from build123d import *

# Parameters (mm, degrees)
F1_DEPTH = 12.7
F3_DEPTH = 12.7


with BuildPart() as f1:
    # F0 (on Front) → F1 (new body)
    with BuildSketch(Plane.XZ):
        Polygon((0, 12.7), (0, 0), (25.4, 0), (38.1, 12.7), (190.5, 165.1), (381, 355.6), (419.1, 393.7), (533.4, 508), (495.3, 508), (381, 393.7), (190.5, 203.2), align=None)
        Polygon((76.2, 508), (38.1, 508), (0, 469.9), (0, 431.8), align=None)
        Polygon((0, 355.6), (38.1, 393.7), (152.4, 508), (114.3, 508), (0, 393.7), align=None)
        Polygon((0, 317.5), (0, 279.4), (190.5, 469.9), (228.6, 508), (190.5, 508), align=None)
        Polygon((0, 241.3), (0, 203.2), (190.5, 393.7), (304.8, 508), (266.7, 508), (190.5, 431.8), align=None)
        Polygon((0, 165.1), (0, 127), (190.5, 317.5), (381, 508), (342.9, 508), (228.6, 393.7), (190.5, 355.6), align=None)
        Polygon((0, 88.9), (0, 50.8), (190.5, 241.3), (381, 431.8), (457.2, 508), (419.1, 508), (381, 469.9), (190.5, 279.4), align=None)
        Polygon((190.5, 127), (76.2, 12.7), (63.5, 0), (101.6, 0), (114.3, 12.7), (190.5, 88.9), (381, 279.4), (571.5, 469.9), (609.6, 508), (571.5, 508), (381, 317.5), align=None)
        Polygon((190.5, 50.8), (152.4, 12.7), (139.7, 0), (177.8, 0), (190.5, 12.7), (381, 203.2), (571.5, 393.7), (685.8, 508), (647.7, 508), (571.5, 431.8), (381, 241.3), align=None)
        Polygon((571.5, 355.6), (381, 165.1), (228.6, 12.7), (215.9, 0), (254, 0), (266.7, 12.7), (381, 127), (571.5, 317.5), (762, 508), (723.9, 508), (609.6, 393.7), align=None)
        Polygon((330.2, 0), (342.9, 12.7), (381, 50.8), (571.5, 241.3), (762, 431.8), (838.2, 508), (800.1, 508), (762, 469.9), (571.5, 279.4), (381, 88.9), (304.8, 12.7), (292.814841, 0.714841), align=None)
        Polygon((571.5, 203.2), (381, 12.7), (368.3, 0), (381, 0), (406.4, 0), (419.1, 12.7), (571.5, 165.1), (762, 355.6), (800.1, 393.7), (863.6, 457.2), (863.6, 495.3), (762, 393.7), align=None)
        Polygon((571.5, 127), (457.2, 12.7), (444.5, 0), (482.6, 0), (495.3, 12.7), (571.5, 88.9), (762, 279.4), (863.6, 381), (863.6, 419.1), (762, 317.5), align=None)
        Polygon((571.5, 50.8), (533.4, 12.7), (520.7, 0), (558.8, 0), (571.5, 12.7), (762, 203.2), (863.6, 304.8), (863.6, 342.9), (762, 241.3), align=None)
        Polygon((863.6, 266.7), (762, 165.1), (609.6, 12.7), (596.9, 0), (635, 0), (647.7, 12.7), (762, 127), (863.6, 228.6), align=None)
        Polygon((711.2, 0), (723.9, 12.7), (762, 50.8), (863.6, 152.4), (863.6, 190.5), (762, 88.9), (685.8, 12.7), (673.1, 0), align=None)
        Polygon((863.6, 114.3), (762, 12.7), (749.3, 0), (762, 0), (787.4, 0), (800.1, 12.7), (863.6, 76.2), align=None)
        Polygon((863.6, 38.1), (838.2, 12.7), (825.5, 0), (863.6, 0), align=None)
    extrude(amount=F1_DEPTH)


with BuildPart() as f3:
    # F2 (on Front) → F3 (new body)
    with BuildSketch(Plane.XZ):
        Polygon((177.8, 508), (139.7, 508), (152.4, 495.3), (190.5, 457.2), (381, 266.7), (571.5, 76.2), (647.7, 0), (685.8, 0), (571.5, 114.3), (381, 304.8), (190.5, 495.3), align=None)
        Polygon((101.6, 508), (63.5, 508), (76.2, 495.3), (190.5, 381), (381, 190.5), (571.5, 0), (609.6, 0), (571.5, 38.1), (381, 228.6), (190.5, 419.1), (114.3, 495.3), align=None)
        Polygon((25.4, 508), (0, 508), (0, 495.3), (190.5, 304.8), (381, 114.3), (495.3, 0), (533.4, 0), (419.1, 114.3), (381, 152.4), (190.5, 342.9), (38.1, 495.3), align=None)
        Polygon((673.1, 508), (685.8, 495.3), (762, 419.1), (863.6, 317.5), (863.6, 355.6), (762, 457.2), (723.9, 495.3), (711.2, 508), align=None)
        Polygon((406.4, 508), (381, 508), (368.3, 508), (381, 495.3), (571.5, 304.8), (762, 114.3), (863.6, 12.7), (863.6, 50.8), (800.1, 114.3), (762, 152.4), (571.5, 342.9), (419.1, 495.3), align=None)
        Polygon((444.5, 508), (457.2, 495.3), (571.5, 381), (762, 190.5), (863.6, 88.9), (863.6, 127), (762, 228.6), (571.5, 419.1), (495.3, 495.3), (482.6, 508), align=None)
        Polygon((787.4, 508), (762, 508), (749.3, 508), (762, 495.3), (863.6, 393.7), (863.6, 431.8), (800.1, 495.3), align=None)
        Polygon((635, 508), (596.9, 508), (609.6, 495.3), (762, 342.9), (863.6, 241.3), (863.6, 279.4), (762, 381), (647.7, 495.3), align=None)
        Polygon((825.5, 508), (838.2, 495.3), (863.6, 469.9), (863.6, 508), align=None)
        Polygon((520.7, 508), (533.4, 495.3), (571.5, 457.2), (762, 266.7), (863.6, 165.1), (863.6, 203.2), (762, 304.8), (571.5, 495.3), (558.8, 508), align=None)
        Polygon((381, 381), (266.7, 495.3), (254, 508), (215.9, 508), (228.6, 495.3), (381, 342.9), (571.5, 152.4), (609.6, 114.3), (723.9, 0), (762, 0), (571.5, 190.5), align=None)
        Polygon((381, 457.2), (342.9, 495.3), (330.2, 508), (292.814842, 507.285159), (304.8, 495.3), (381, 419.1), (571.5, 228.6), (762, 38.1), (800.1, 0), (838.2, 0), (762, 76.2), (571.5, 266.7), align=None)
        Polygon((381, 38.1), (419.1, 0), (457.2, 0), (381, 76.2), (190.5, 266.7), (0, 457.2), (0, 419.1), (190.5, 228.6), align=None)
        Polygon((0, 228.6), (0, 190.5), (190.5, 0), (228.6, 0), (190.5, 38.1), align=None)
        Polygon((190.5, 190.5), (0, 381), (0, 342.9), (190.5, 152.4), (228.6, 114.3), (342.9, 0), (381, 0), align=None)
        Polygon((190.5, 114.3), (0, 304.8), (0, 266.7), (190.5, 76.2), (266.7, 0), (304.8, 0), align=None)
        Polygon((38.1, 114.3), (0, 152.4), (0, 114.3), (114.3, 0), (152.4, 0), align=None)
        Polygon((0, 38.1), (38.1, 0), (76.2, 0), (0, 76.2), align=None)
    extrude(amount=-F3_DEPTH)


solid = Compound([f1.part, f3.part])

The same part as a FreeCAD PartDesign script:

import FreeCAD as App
import Part
import Sketcher

V = App.Vector
Q = App.Units.Quantity


def add_polygon(sketch, points):
    """Adds a closed chain of lines whose ends are joined by coincident constraints."""
    first, n = sketch.GeometryCount, len(points)
    for a, b in zip(points, points[1:] + points[:1]):
        sketch.addGeometry(Part.LineSegment(App.Vector(*a, 0), App.Vector(*b, 0)), False)
    for i in range(n):
        sketch.addConstraint(Sketcher.Constraint("Coincident", first + i, 2, first + (i + 1) % n, 1))

doc = App.newDocument("Part")
params = doc.addObject("Spreadsheet::Sheet", "Params")
for row, (alias, value) in enumerate([
    ("sketch1_width", "1 in"),
    ("sketch1_width2", "1.5 in"),
    ("pad1_length", "0.5 in"),
    ("sketch2_width", "1 in"),
    ("sketch2_width2", "1.5 in"),
    ("pad2_length", "0.5 in"),
], start=1):
    params.set(f"A{row}", alias)
    params.set(f"B{row}", "=" + value)
    params.setAlias(f"B{row}", alias)

body = doc.addObject("PartDesign::Body", "Body")
body.AllowCompound = True

sketch1 = body.newObject("Sketcher::SketchObject", "Sketch")
sketch1.AttachmentSupport = (doc.getObject("XZ_Plane"), [""])
sketch1.MapMode = "FlatFace"
add_polygon(sketch1, [(0, 13), (0, 0), (25, 0), (533, 508), (495, 508)])
add_polygon(sketch1, [(76, 508), (38, 508), (0, 470), (0, 432)])
add_polygon(sketch1, [(0, 356), (152, 508), (114, 508), (0, 394)])
add_polygon(sketch1, [(0, 318), (0, 279), (229, 508), (190, 508)])
add_polygon(sketch1, [(0, 241), (0, 203), (305, 508), (267, 508)])
add_polygon(sketch1, [(0, 165), (0, 127), (381, 508), (343, 508)])
add_polygon(sketch1, [(0, 89), (0, 51), (457, 508), (419, 508)])
add_polygon(sketch1, [(64, 0), (102, 0), (610, 508), (572, 508)])
add_polygon(sketch1, [(140, 0), (178, 0), (686, 508), (648, 508)])
add_polygon(sketch1, [(216, 0), (254, 0), (762, 508), (724, 508)])
add_polygon(sketch1, [(330, 0), (838, 508), (800, 508), (293, 1)])
add_polygon(sketch1, [(368, 0), (406, 0), (864, 457), (864, 495)])
add_polygon(sketch1, [(444, 0), (483, 0), (864, 381), (864, 419)])
add_polygon(sketch1, [(521, 0), (559, 0), (864, 305), (864, 343)])
add_polygon(sketch1, [(864, 267), (597, 0), (635, 0), (864, 229)])
add_polygon(sketch1, [(711, 0), (864, 152), (864, 190), (673, 0)])
add_polygon(sketch1, [(864, 114), (749, 0), (787, 0), (864, 76)])
add_polygon(sketch1, [(864, 38), (826, 0), (864, 0)])
sketch1.addConstraint([
    Sketcher.Constraint("Vertical", 0),
    Sketcher.Constraint("Horizontal", 1),
    Sketcher.Constraint("Horizontal", 3),
    Sketcher.Constraint("Horizontal", 5),
    Sketcher.Constraint("Vertical", 7),
    Sketcher.Constraint("Horizontal", 10),
    Sketcher.Constraint("Vertical", 12),
    Sketcher.Constraint("Vertical", 13),
    Sketcher.Constraint("Horizontal", 15),
    Sketcher.Constraint("Vertical", 17),
    Sketcher.Constraint("Horizontal", 19),
    Sketcher.Constraint("Vertical", 21),
    Sketcher.Constraint("Horizontal", 23),
    Sketcher.Constraint("Vertical", 25),
    Sketcher.Constraint("Horizontal", 27),
    Sketcher.Constraint("Horizontal", 29),
    Sketcher.Constraint("Horizontal", 31),
    Sketcher.Constraint("Horizontal", 33),
    Sketcher.Constraint("Horizontal", 35),
    Sketcher.Constraint("Horizontal", 37),
    Sketcher.Constraint("Horizontal", 39),
    Sketcher.Constraint("Horizontal", 42),
    Sketcher.Constraint("Horizontal", 45),
    Sketcher.Constraint("Vertical", 47),
    Sketcher.Constraint("Horizontal", 49),
    Sketcher.Constraint("Vertical", 51),
    Sketcher.Constraint("Horizontal", 53),
    Sketcher.Constraint("Vertical", 55),
    Sketcher.Constraint("Horizontal", 58),
    Sketcher.Constraint("Vertical", 60),
    Sketcher.Constraint("Vertical", 62),
    Sketcher.Constraint("Horizontal", 64),
    Sketcher.Constraint("Horizontal", 66),
    Sketcher.Constraint("Vertical", 68),
    Sketcher.Constraint("Horizontal", 70),
    Sketcher.Constraint("Vertical", 71),
    Sketcher.Constraint("Coincident", 0, 2, -1, 1),
    Sketcher.Constraint("PointOnObject", 6, 2, -2),
    Sketcher.Constraint("PointOnObject", 11, 2, -2),
    Sketcher.Constraint("PointOnObject", 13, 2, -2),
    Sketcher.Constraint("PointOnObject", 17, 2, -2),
    Sketcher.Constraint("PointOnObject", 21, 2, -2),
    Sketcher.Constraint("PointOnObject", 25, 2, -2),
    Sketcher.Constraint("PointOnObject", 29, 2, -1),
    Sketcher.Constraint("PointOnObject", 33, 2, -1),
    Sketcher.Constraint("PointOnObject", 37, 2, -1),
    Sketcher.Constraint("PointOnObject", 44, 2, -1),
    Sketcher.Constraint("PointOnObject", 45, 2, -1),
    Sketcher.Constraint("PointOnObject", 49, 2, -1),
    Sketcher.Constraint("PointOnObject", 53, 2, -1),
    Sketcher.Constraint("PointOnObject", 57, 2, -1),
    Sketcher.Constraint("PointOnObject", 63, 2, -1),
    Sketcher.Constraint("PointOnObject", 65, 2, -1),
    Sketcher.Constraint("PointOnObject", 69, 2, -1),
    Sketcher.Constraint("Parallel", 2, 4),
    Sketcher.Constraint("Parallel", 4, 6),
    Sketcher.Constraint("Parallel", 6, 8),
    Sketcher.Constraint("Parallel", 8, 9),
    Sketcher.Constraint("Parallel", 9, 11),
    Sketcher.Constraint("Parallel", 11, 14),
    Sketcher.Constraint("Parallel", 14, 16),
    Sketcher.Constraint("Parallel", 16, 18),
    Sketcher.Constraint("Parallel", 18, 20),
    Sketcher.Constraint("Parallel", 20, 22),
    Sketcher.Constraint("Parallel", 22, 24),
    Sketcher.Constraint("Parallel", 24, 26),
    Sketcher.Constraint("Parallel", 26, 28),
    Sketcher.Constraint("Parallel", 28, 30),
    Sketcher.Constraint("Parallel", 30, 32),
    Sketcher.Constraint("Parallel", 32, 34),
    Sketcher.Constraint("Parallel", 34, 36),
    Sketcher.Constraint("Parallel", 36, 38),
    Sketcher.Constraint("Parallel", 38, 40),
    Sketcher.Constraint("Parallel", 40, 41),
    Sketcher.Constraint("Parallel", 41, 43),
    Sketcher.Constraint("Parallel", 43, 46),
    Sketcher.Constraint("Parallel", 46, 48),
    Sketcher.Constraint("Parallel", 48, 50),
    Sketcher.Constraint("Parallel", 50, 52),
    Sketcher.Constraint("Parallel", 52, 54),
    Sketcher.Constraint("Parallel", 54, 56),
    Sketcher.Constraint("Parallel", 56, 57),
    Sketcher.Constraint("Parallel", 57, 59),
    Sketcher.Constraint("Parallel", 59, 61),
    Sketcher.Constraint("Parallel", 61, 63),
    Sketcher.Constraint("Parallel", 63, 65),
    Sketcher.Constraint("Parallel", 65, 67),
    Sketcher.Constraint("Parallel", 67, 69),
    Sketcher.Constraint("Horizontal", 3, 2, 5, 2),
    Sketcher.Constraint("Horizontal", 8, 2, 9, 2),
    Sketcher.Constraint("Horizontal", 10, 2, 14, 2),
    Sketcher.Constraint("Horizontal", 15, 2, 18, 2),
    Sketcher.Constraint("Horizontal", 19, 2, 22, 2),
    Sketcher.Constraint("Horizontal", 23, 2, 26, 2),
    Sketcher.Constraint("Horizontal", 27, 2, 30, 2),
    Sketcher.Constraint("Horizontal", 31, 2, 34, 2),
    Sketcher.Constraint("Horizontal", 35, 2, 38, 2),
    Sketcher.Constraint("Horizontal", 39, 2, 41, 2),
    Sketcher.Constraint("Vertical", 47, 2, 50, 2),
    Sketcher.Constraint("Vertical", 51, 2, 54, 2),
    Sketcher.Constraint("Vertical", 55, 2, 59, 2),
    Sketcher.Constraint("Vertical", 60, 2, 61, 2),
    Sketcher.Constraint("Vertical", 62, 2, 67, 2),
    Sketcher.Constraint("Vertical", 68, 2, 70, 2),
    Sketcher.Constraint("Equal", 3, 5),
    Sketcher.Constraint("Equal", 5, 10),
    Sketcher.Constraint("Equal", 10, 15),
    Sketcher.Constraint("Equal", 15, 19),
    Sketcher.Constraint("Equal", 19, 23),
    Sketcher.Constraint("Equal", 23, 27),
    Sketcher.Constraint("Equal", 27, 29),
    Sketcher.Constraint("Equal", 31, 33),
    Sketcher.Constraint("Equal", 35, 37),
    Sketcher.Constraint("Equal", 39, 42),
    Sketcher.Constraint("Equal", 42, 45),
    Sketcher.Constraint("Equal", 45, 49),
    Sketcher.Constraint("Equal", 49, 53),
    Sketcher.Constraint("Equal", 53, 58),
    Sketcher.Constraint("Equal", 58, 64),
    Sketcher.Constraint("Equal", 64, 66),
    Sketcher.Constraint("Equal", 66, 70),
    Sketcher.Constraint("Equal", 70, 7),
    Sketcher.Constraint("Equal", 26, 46),
    Sketcher.Constraint("Equal", 4, 48),
    Sketcher.Constraint("Equal", 22, 50),
    Sketcher.Constraint("Equal", 28, 52),
    Sketcher.Constraint("Equal", 18, 54),
    Sketcher.Constraint("Equal", 24, 56),
    Sketcher.Constraint("Equal", 20, 57),
    Sketcher.Constraint("Equal", 14, 59),
    Sketcher.Constraint("Equal", 9, 61),
    Sketcher.Constraint("Equal", 16, 63),
    Sketcher.Constraint("Equal", 11, 65),
    Sketcher.Constraint("Equal", 8, 67),
    Sketcher.Constraint("Equal", 6, 69),
    Sketcher.Constraint("DistanceX", 1, 1, 1, 2, Q("1 in")),
    Sketcher.Constraint("DistanceX", 3, 2, 3, 1, Q("1.5 in")),
    Sketcher.Constraint("DistanceX", -1, 1, 29, 2, Q("4 in")),
    Sketcher.Constraint("DistanceX", -1, 1, 33, 2, Q("7 in")),
    Sketcher.Constraint("DistanceX", -1, 1, 37, 2, Q("10 in")),
    Sketcher.Constraint("DistanceX", -1, 1, 41, 2, Q("33 in")),
    Sketcher.Constraint("DistanceX", -1, 1, 45, 2, Q("16 in")),
    Sketcher.Constraint("Distance", 43, 717.409552),
])
sketch1.setExpression("Constraints[207]", "Params.sketch1_width")
sketch1.setExpression("Constraints[208]", "Params.sketch1_width2")
pad1 = body.newObject("PartDesign::Pad", "Pad")
pad1.Profile = sketch1
pad1.setExpression("Length", "Params.pad1_length")
body2 = doc.addObject("PartDesign::Body", "Body001")
body2.AllowCompound = True

sketch2 = body2.newObject("Sketcher::SketchObject", "Sketch001")
sketch2.AttachmentSupport = (doc.getObject("XZ_Plane001"), [""])
sketch2.MapMode = "FlatFace"
add_polygon(sketch2, [(178, 508), (140, 508), (648, 0), (686, 0)])
add_polygon(sketch2, [(102, 508), (64, 508), (572, 0), (610, 0)])
add_polygon(sketch2, [(25, 508), (0, 508), (0, 495), (495, 0), (533, 0)])
add_polygon(sketch2, [(673, 508), (864, 318), (864, 356), (711, 508)])
add_polygon(sketch2, [(406, 508), (368, 508), (864, 13), (864, 51)])
add_polygon(sketch2, [(444, 508), (864, 89), (864, 127), (483, 508)])
add_polygon(sketch2, [(787, 508), (749, 508), (864, 394), (864, 432)])
add_polygon(sketch2, [(635, 508), (597, 508), (864, 241), (864, 279)])
add_polygon(sketch2, [(826, 508), (864, 470), (864, 508)])
add_polygon(sketch2, [(521, 508), (864, 165), (864, 203), (559, 508)])
add_polygon(sketch2, [(254, 508), (216, 508), (724, 0), (762, 0)])
add_polygon(sketch2, [(330, 508), (293, 507), (305, 495), (800, 0), (838, 0)])
add_polygon(sketch2, [(419, 0), (457, 0), (0, 457), (0, 419)])
add_polygon(sketch2, [(0, 229), (0, 190), (190, 0), (229, 0)])
add_polygon(sketch2, [(0, 381), (0, 343), (343, 0), (381, 0)])
add_polygon(sketch2, [(0, 305), (0, 267), (267, 0), (305, 0)])
add_polygon(sketch2, [(0, 152), (0, 114), (114, 0), (152, 0)])
add_polygon(sketch2, [(0, 38), (38, 0), (76, 0), (0, 76)])
sketch2.addConstraint([
    Sketcher.Constraint("Horizontal", 0),
    Sketcher.Constraint("Horizontal", 2),
    Sketcher.Constraint("Horizontal", 4),
    Sketcher.Constraint("Horizontal", 6),
    Sketcher.Constraint("Horizontal", 8),
    Sketcher.Constraint("Vertical", 9),
    Sketcher.Constraint("Horizontal", 11),
    Sketcher.Constraint("Vertical", 14),
    Sketcher.Constraint("Horizontal", 16),
    Sketcher.Constraint("Horizontal", 17),
    Sketcher.Constraint("Vertical", 19),
    Sketcher.Constraint("Vertical", 22),
    Sketcher.Constraint("Horizontal", 24),
    Sketcher.Constraint("Horizontal", 25),
    Sketcher.Constraint("Vertical", 27),
    Sketcher.Constraint("Horizontal", 29),
    Sketcher.Constraint("Vertical", 31),
    Sketcher.Constraint("Vertical", 34),
    Sketcher.Constraint("Horizontal", 35),
    Sketcher.Constraint("Vertical", 37),
    Sketcher.Constraint("Horizontal", 39),
    Sketcher.Constraint("Horizontal", 40),
    Sketcher.Constraint("Horizontal", 42),
    Sketcher.Constraint("Horizontal", 47),
    Sketcher.Constraint("Horizontal", 49),
    Sketcher.Constraint("Vertical", 51),
    Sketcher.Constraint("Vertical", 53),
    Sketcher.Constraint("Horizontal", 55),
    Sketcher.Constraint("Vertical", 57),
    Sketcher.Constraint("Horizontal", 59),
    Sketcher.Constraint("Vertical", 61),
    Sketcher.Constraint("Horizontal", 63),
    Sketcher.Constraint("Vertical", 65),
    Sketcher.Constraint("Horizontal", 67),
    Sketcher.Constraint("Horizontal", 70),
    Sketcher.Constraint("Vertical", 72),
    Sketcher.Constraint("PointOnObject", 1, 2, -1),
    Sketcher.Constraint("PointOnObject", 5, 2, -1),
    Sketcher.Constraint("PointOnObject", 8, 2, -2),
    Sketcher.Constraint("PointOnObject", 10, 2, -1),
    Sketcher.Constraint("PointOnObject", 41, 2, -1),
    Sketcher.Constraint("PointOnObject", 46, 2, -1),
    Sketcher.Constraint("PointOnObject", 49, 2, -1),
    Sketcher.Constraint("PointOnObject", 50, 2, -2),
    Sketcher.Constraint("PointOnObject", 53, 2, -2),
    Sketcher.Constraint("PointOnObject", 54, 2, -1),
    Sketcher.Constraint("PointOnObject", 57, 2, -2),
    Sketcher.Constraint("PointOnObject", 58, 2, -1),
    Sketcher.Constraint("PointOnObject", 61, 2, -2),
    Sketcher.Constraint("PointOnObject", 62, 2, -1),
    Sketcher.Constraint("PointOnObject", 65, 2, -2),
    Sketcher.Constraint("PointOnObject", 66, 2, -1),
    Sketcher.Constraint("PointOnObject", 69, 2, -1),
    Sketcher.Constraint("PointOnObject", 71, 2, -2),
    Sketcher.Constraint("Parallel", 1, 3),
    Sketcher.Constraint("Parallel", 3, 5),
    Sketcher.Constraint("Parallel", 5, 7),
    Sketcher.Constraint("Parallel", 7, 10),
    Sketcher.Constraint("Parallel", 10, 12),
    Sketcher.Constraint("Parallel", 12, 13),
    Sketcher.Constraint("Parallel", 13, 15),
    Sketcher.Constraint("Parallel", 15, 18),
    Sketcher.Constraint("Parallel", 18, 20),
    Sketcher.Constraint("Parallel", 20, 21),
    Sketcher.Constraint("Parallel", 21, 23),
    Sketcher.Constraint("Parallel", 23, 26),
    Sketcher.Constraint("Parallel", 26, 28),
    Sketcher.Constraint("Parallel", 28, 30),
    Sketcher.Constraint("Parallel", 30, 32),
    Sketcher.Constraint("Parallel", 32, 33),
    Sketcher.Constraint("Parallel", 33, 36),
    Sketcher.Constraint("Parallel", 36, 38),
    Sketcher.Constraint("Parallel", 38, 41),
    Sketcher.Constraint("Parallel", 41, 43),
    Sketcher.Constraint("Parallel", 43, 45),
    Sketcher.Constraint("Parallel", 45, 46),
    Sketcher.Constraint("Parallel", 46, 48),
    Sketcher.Constraint("Parallel", 48, 50),
    Sketcher.Constraint("Parallel", 50, 52),
    Sketcher.Constraint("Parallel", 52, 54),
    Sketcher.Constraint("Parallel", 54, 56),
    Sketcher.Constraint("Parallel", 56, 58),
    Sketcher.Constraint("Parallel", 58, 60),
    Sketcher.Constraint("Parallel", 60, 62),
    Sketcher.Constraint("Parallel", 62, 64),
    Sketcher.Constraint("Parallel", 64, 66),
    Sketcher.Constraint("Parallel", 66, 68),
    Sketcher.Constraint("Parallel", 68, 69),
    Sketcher.Constraint("Parallel", 69, 71),
    Sketcher.Constraint("Horizontal", 3, 2, 4, 2),
    Sketcher.Constraint("Horizontal", 7, 2, 8, 2),
    Sketcher.Constraint("Horizontal", 12, 2, 15, 2),
    Sketcher.Constraint("Horizontal", 16, 2, 17, 2),
    Sketcher.Constraint("Horizontal", 20, 2, 23, 2),
    Sketcher.Constraint("Horizontal", 24, 2, 25, 2),
    Sketcher.Constraint("Horizontal", 28, 2, 29, 2),
    Sketcher.Constraint("Horizontal", 32, 2, 34, 2),
    Sketcher.Constraint("Horizontal", 35, 2, 38, 2),
    Sketcher.Constraint("Horizontal", 39, 2, 40, 2),
    Sketcher.Constraint("Horizontal", 9, 2, 45, 2),
    Sketcher.Constraint("Horizontal", 43, 2, 48, 2),
    Sketcher.Constraint("Vertical", 14, 2, 18, 2),
    Sketcher.Constraint("Vertical", 19, 2, 21, 2),
    Sketcher.Constraint("Vertical", 22, 2, 26, 2),
    Sketcher.Constraint("Vertical", 27, 2, 30, 2),
    Sketcher.Constraint("Vertical", 31, 2, 33, 2),
    Sketcher.Constraint("Vertical", 34, 2, 36, 2),
    Sketcher.Constraint("Vertical", 45, 2, 63, 2),
    Sketcher.Constraint("Equal", 2, 4),
    Sketcher.Constraint("Equal", 6, 11),
    Sketcher.Constraint("Equal", 11, 16),
    Sketcher.Constraint("Equal", 16, 17),
    Sketcher.Constraint("Equal", 17, 24),
    Sketcher.Constraint("Equal", 24, 25),
    Sketcher.Constraint("Equal", 25, 29),
    Sketcher.Constraint("Equal", 29, 35),
    Sketcher.Constraint("Equal", 35, 39),
    Sketcher.Constraint("Equal", 39, 40),
    Sketcher.Constraint("Equal", 42, 47),
    Sketcher.Constraint("Equal", 47, 49),
    Sketcher.Constraint("Equal", 49, 55),
    Sketcher.Constraint("Equal", 55, 59),
    Sketcher.Constraint("Equal", 59, 63),
    Sketcher.Constraint("Equal", 63, 67),
    Sketcher.Constraint("Equal", 67, 70),
    Sketcher.Constraint("Equal", 70, 14),
    Sketcher.Constraint("Equal", 10, 18),
    Sketcher.Constraint("Equal", 20, 50),
    Sketcher.Constraint("Equal", 21, 52),
    Sketcher.Constraint("Equal", 13, 54),
    Sketcher.Constraint("Equal", 32, 56),
    Sketcher.Constraint("Equal", 36, 58),
    Sketcher.Constraint("Equal", 23, 60),
    Sketcher.Constraint("Equal", 30, 62),
    Sketcher.Constraint("Equal", 38, 64),
    Sketcher.Constraint("Equal", 26, 66),
    Sketcher.Constraint("Equal", 15, 68),
    Sketcher.Constraint("Equal", 33, 69),
    Sketcher.Constraint("Equal", 28, 71),
    Sketcher.Constraint("DistanceX", 8, 2, 8, 1, Q("1 in")),
    Sketcher.Constraint("DistanceX", 0, 2, 0, 1, Q("1.5 in")),
    Sketcher.Constraint("DistanceX", -1, 1, 2, 2, Q("27 in")),
    Sketcher.Constraint("DistanceX", -1, 1, 6, 2, Q("24 in")),
    Sketcher.Constraint("DistanceX", -1, 1, 13, 2, Q("34 in")),
    Sketcher.Constraint("DistanceX", -1, 1, 42, 2, Q("30 in")),
    Sketcher.Constraint("Distance", 44, 37.391992),
])
sketch2.setExpression("Constraints[212]", "Params.sketch2_width")
sketch2.setExpression("Constraints[213]", "Params.sketch2_width2")
pad2 = body2.newObject("PartDesign::Pad", "Pad001")
pad2.Profile = sketch2
pad2.setExpression("Length", "Params.pad2_length")
pad2.Reversed = True

doc.recompute()
